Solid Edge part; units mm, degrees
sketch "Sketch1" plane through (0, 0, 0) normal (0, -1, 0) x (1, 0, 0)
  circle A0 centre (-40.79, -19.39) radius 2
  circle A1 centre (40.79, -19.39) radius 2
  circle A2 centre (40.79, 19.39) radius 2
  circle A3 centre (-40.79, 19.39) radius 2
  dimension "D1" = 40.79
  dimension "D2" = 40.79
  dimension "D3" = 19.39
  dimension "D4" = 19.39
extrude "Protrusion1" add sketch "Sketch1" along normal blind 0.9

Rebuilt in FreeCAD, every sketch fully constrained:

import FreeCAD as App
import Part
import Sketcher

V = App.Vector

doc = App.newDocument("Part")
body = doc.addObject("PartDesign::Body", "Body")
body.AllowCompound = True

sketch1 = body.newObject("Sketcher::SketchObject", "Sketch")
sketch1.AttachmentSupport = (doc.getObject("XZ_Plane"), [""])
sketch1.MapMode = "FlatFace"
sketch1.addGeometry(Part.Circle(V(-40.8, -19.4, 0), V(0, 0, 1), 2), False)
sketch1.addGeometry(Part.Circle(V(40.8, -19.4, 0), V(0, 0, 1), 2), False)
sketch1.addGeometry(Part.Circle(V(40.8, 19.4, 0), V(0, 0, 1), 2), False)
sketch1.addGeometry(Part.Circle(V(-40.8, 19.4, 0), V(0, 0, 1), 2), False)
sketch1.addConstraint(Sketcher.Constraint("Equal", 0, 1))
sketch1.addConstraint(Sketcher.Constraint("Equal", 1, 2))
sketch1.addConstraint(Sketcher.Constraint("Equal", 2, 3))
sketch1.addConstraint(Sketcher.Constraint("Symmetric", 0, 3, 2, 3, -1, 1))
sketch1.addConstraint(Sketcher.Constraint("Symmetric", 1, 3, 3, 3, -1, 1))
sketch1.addConstraint(Sketcher.Constraint("Symmetric", 0, 3, 1, 3, -2))
sketch1.addConstraint(Sketcher.Constraint("Diameter", 0, 4.0))
sketch1.addConstraint(Sketcher.Constraint("DistanceX", 0, 3, -1, 1, 40.79))
sketch1.addConstraint(Sketcher.Constraint("DistanceY", 0, 3, -1, 1, 19.39))
pad1 = body.newObject("PartDesign::Pad", "Pad")
pad1.Profile = sketch1
pad1.Length = 0.9

doc.recompute()
